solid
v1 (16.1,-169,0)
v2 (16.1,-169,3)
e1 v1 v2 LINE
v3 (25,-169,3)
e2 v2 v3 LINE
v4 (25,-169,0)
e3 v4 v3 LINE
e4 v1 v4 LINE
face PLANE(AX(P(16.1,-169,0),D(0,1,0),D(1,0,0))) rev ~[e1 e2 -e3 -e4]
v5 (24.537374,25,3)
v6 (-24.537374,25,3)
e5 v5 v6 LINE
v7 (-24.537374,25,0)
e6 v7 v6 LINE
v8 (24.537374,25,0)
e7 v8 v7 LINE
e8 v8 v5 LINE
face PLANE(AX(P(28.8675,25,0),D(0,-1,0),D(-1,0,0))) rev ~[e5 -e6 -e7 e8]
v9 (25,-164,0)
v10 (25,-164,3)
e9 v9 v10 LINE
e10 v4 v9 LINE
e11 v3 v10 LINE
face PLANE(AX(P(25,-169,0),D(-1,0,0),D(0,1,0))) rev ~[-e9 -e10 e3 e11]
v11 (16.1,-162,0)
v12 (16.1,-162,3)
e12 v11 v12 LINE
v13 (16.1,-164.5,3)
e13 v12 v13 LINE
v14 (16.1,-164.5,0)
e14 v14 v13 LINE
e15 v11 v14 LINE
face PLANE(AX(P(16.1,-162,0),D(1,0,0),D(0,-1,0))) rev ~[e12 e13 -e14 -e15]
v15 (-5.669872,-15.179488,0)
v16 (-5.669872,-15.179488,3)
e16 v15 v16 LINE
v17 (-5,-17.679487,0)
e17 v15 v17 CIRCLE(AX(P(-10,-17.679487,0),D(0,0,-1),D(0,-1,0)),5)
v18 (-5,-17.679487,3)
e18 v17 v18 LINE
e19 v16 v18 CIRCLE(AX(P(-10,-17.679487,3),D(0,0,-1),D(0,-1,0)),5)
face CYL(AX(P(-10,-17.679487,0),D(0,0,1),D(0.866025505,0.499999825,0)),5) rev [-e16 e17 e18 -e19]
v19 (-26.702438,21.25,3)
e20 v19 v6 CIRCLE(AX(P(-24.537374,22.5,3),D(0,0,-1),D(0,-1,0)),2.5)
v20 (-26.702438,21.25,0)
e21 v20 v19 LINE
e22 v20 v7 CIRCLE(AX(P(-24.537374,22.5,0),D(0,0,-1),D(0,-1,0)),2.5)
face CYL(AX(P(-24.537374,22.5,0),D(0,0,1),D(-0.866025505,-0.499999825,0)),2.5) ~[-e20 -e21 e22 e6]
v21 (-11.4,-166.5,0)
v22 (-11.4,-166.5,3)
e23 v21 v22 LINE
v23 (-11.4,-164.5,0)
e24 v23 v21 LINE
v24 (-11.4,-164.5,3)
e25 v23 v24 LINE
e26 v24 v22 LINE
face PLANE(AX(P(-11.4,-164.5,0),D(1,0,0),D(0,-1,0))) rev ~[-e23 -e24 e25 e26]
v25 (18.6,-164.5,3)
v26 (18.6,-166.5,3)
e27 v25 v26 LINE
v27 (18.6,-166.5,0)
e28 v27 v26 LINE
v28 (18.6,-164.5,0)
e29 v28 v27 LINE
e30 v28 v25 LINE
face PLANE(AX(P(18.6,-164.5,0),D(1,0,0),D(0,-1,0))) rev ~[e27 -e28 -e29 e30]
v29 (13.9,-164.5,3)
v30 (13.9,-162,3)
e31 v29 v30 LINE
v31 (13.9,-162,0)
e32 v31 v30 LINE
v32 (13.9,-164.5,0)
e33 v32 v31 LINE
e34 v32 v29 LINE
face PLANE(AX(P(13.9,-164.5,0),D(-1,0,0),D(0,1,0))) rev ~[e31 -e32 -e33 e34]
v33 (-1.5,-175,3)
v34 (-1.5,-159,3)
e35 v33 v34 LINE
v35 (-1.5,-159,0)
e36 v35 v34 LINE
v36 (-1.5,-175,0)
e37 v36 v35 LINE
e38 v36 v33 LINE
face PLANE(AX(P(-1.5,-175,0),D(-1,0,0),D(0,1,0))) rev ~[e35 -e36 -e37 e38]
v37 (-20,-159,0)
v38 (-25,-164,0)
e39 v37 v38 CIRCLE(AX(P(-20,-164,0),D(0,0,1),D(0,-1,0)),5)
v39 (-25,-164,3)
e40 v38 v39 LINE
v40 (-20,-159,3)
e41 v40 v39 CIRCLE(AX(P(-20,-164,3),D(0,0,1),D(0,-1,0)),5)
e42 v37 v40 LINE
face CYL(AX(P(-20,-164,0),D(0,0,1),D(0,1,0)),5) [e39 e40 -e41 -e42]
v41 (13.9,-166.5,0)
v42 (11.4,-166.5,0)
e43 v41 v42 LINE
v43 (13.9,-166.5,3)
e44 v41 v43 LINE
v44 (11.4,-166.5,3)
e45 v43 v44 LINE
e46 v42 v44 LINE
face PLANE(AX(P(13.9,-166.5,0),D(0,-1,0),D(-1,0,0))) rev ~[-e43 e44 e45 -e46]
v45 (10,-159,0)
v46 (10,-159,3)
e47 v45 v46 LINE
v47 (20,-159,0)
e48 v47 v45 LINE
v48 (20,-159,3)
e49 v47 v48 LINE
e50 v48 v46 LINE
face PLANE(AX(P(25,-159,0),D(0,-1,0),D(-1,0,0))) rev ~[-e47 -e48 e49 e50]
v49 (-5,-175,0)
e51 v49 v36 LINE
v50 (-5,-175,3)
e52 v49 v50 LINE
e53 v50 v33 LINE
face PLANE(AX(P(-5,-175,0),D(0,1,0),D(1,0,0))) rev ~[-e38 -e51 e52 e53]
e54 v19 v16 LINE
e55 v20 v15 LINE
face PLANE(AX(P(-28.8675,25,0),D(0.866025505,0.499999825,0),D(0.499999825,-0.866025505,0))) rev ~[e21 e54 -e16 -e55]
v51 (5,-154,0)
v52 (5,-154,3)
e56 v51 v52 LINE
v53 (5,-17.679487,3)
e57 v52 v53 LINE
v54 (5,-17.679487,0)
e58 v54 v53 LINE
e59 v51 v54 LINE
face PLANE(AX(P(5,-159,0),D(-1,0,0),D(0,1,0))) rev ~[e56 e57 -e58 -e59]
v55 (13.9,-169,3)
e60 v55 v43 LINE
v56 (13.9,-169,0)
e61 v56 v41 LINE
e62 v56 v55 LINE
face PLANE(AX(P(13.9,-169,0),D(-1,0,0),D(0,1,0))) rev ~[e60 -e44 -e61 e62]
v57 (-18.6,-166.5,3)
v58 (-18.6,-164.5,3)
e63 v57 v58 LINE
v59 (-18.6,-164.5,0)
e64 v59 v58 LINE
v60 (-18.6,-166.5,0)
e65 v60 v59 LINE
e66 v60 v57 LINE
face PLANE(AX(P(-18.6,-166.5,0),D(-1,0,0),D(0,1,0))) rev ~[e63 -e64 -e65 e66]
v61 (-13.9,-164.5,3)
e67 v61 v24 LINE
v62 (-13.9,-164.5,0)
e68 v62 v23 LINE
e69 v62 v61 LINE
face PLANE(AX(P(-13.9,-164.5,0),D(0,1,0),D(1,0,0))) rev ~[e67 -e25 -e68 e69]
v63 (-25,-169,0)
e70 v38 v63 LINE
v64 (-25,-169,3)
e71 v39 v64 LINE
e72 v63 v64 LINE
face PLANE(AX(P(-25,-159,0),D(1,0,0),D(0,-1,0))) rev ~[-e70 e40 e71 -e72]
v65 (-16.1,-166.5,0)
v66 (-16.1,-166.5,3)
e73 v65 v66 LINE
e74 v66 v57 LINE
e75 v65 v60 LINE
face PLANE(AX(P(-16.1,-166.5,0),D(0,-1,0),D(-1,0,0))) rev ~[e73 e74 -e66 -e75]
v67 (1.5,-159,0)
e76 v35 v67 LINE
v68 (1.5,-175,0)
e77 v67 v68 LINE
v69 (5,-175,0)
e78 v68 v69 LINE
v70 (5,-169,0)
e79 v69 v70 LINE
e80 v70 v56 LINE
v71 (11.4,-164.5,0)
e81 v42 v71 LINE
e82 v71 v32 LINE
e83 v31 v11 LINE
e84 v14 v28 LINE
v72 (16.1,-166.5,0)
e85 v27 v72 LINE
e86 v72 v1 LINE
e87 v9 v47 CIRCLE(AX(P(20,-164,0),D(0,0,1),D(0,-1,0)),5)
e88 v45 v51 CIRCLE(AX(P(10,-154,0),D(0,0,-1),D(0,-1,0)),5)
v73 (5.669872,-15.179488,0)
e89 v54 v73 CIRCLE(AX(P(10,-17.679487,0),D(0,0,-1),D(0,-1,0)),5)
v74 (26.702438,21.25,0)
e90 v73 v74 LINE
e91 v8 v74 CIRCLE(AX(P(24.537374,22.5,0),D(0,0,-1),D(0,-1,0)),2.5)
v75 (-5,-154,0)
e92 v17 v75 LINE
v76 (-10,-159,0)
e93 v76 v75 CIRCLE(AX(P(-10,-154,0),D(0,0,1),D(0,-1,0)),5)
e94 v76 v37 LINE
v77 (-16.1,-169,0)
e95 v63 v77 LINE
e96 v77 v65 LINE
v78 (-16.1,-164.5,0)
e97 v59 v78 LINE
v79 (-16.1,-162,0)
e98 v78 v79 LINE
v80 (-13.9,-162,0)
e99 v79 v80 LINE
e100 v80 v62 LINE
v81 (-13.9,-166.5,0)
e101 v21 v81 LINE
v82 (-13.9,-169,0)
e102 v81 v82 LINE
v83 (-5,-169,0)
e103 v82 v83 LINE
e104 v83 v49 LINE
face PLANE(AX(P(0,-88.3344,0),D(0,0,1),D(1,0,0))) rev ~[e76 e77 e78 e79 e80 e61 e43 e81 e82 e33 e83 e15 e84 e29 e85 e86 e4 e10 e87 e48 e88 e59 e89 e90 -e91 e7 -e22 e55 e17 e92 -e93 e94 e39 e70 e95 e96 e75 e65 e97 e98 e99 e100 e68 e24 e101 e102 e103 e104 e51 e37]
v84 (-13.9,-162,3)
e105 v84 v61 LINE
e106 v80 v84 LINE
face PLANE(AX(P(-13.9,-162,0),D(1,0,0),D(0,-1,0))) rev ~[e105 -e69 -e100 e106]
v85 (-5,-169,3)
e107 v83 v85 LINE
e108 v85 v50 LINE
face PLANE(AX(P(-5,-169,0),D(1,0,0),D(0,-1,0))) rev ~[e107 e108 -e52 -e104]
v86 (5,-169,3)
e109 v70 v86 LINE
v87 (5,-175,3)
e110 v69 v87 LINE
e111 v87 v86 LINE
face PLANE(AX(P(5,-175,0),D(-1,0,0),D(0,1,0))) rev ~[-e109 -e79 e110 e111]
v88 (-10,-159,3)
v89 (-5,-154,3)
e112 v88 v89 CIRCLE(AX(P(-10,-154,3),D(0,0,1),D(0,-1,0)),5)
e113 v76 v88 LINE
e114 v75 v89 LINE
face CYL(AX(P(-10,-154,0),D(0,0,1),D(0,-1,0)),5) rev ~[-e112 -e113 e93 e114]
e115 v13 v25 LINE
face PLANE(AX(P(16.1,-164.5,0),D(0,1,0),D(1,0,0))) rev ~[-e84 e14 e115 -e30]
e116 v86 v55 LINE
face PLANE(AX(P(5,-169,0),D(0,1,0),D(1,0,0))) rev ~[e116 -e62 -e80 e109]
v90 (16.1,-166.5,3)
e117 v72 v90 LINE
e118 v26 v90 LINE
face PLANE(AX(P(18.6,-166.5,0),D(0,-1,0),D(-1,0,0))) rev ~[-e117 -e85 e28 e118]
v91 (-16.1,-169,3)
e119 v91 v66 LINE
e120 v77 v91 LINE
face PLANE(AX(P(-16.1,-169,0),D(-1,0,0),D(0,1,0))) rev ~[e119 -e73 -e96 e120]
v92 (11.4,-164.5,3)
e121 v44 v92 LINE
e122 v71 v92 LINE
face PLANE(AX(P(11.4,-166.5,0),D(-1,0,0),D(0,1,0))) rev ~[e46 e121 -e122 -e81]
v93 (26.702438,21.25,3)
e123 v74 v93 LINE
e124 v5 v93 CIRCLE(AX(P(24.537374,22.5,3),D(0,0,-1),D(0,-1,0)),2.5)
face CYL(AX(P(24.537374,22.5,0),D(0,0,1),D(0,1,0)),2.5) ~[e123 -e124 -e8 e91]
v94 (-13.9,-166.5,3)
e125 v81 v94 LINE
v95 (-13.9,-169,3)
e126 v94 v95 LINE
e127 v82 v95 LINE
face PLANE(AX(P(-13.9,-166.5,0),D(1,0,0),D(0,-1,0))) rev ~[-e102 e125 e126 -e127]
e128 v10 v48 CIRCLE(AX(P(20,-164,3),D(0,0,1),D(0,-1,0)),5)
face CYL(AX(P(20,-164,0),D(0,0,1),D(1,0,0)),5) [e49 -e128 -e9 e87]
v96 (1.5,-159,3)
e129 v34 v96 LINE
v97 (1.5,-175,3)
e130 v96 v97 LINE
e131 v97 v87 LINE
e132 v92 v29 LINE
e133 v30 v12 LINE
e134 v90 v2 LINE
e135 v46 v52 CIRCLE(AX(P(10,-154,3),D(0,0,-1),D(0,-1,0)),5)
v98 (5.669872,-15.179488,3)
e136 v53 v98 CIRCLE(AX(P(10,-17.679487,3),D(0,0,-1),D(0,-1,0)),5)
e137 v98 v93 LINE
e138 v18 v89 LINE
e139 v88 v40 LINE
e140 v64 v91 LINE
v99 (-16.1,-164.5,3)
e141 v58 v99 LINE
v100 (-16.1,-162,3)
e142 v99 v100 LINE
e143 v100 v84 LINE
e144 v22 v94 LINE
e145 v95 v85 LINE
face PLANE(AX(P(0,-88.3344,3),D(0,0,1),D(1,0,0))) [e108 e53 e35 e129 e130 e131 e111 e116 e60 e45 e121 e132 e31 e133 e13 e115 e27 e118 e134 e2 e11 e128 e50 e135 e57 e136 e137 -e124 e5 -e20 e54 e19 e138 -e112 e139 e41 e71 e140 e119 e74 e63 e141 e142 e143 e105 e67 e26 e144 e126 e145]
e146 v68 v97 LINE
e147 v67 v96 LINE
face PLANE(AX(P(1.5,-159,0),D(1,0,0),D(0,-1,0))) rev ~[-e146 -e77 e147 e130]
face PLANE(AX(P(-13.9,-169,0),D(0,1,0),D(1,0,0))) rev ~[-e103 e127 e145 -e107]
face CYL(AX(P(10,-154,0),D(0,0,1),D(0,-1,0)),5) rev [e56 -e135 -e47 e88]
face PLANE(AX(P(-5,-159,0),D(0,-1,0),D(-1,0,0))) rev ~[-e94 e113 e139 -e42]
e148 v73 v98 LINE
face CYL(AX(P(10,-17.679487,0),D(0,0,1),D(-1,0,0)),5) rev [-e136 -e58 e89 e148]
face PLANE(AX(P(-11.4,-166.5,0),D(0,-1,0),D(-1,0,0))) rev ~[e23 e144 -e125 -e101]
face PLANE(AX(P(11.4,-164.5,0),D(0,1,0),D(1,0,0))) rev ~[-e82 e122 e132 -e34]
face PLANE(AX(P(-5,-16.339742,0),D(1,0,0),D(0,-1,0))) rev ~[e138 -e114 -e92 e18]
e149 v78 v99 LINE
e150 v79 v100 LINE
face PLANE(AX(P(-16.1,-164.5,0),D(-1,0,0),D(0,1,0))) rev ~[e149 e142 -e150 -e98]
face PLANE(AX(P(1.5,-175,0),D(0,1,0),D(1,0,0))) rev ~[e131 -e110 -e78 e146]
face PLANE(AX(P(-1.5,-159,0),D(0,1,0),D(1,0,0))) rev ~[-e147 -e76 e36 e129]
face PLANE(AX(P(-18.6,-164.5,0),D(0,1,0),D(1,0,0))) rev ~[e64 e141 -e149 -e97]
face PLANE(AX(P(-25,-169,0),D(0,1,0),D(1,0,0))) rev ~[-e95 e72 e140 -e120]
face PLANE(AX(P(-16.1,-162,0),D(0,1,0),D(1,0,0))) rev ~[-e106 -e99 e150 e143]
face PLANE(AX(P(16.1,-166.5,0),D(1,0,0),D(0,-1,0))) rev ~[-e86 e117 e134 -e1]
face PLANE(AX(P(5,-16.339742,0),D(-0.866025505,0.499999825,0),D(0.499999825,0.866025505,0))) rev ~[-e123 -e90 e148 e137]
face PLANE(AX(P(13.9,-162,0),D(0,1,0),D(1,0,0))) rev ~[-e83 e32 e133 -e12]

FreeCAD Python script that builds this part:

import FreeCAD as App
import Part
import Sketcher
Q = App.Units.Quantity


def edges_at(feature, points):
    """Names of the edges that pass closest to the given points."""
    edges = feature.Shape.Edges
    near = lambda p: min(range(len(edges)), key=lambda i: edges[i].distToShape(Part.Vertex(*p))[0])
    return sorted({f"Edge{near(p) + 1}" for p in points})


def add_polygon(sketch, points):
    """Adds a closed chain of lines whose ends are joined by coincident constraints."""
    first, n = sketch.GeometryCount, len(points)
    for a, b in zip(points, points[1:] + points[:1]):
        sketch.addGeometry(Part.LineSegment(App.Vector(*a, 0), App.Vector(*b, 0)), False)
    for i in range(n):
        sketch.addConstraint(Sketcher.Constraint("Coincident", first + i, 2, first + (i + 1) % n, 1))

doc = App.newDocument("Part")
body = doc.addObject("PartDesign::Body", "Body")

sketch1 = body.newObject("Sketcher::SketchObject", "Sketch")
sketch1.AttachmentSupport = (doc.getObject("XY_Plane"), [""])
sketch1.MapMode = "FlatFace"
add_polygon(sketch1, [(-5, -159), (-25, -159), (-25, -169), (-16.1, -169), (-16.1, -166.5), (-18.6, -166.5), (-18.6, -164.5), (-16.1, -164.5), (-16.1, -162), (-13.9, -162), (-13.9, -164.5), (-11.4, -164.5), (-11.4, -166.5), (-13.9, -166.5), (-13.9, -169), (-5, -169), (-5, -175), (-1.5, -175), (-1.5, -159), (1.5, -159), (1.5, -175), (5, -175), (5, -169), (13.9, -169), (13.9, -166.5), (11.4, -166.5), (11.4, -164.5), (13.9, -164.5), (13.9, -162), (16.1, -162), (16.1, -164.5), (18.6, -164.5), (18.6, -166.5), (16.1, -166.5), (16.1, -169), (25, -169), (25, -159), (5, -159), (5, -16.3), (28.9, 25), (-28.9, 25), (-5, -16.3)])
sketch1.addConstraint([
    Sketcher.Constraint("Horizontal", 0),
    Sketcher.Constraint("Vertical", 1),
    Sketcher.Constraint("Horizontal", 2),
    Sketcher.Constraint("Vertical", 3),
    Sketcher.Constraint("Horizontal", 4),
    Sketcher.Constraint("Vertical", 5),
    Sketcher.Constraint("Horizontal", 6),
    Sketcher.Constraint("Vertical", 7),
    Sketcher.Constraint("Horizontal", 8),
    Sketcher.Constraint("Vertical", 9),
    Sketcher.Constraint("Horizontal", 10),
    Sketcher.Constraint("Vertical", 11),
    Sketcher.Constraint("Horizontal", 12),
    Sketcher.Constraint("Vertical", 13),
    Sketcher.Constraint("Horizontal", 14),
    Sketcher.Constraint("Vertical", 15),
    Sketcher.Constraint("Horizontal", 16),
    Sketcher.Constraint("Vertical", 17),
    Sketcher.Constraint("Horizontal", 18),
    Sketcher.Constraint("Vertical", 19),
    Sketcher.Constraint("Horizontal", 20),
    Sketcher.Constraint("Vertical", 21),
    Sketcher.Constraint("Horizontal", 22),
    Sketcher.Constraint("Vertical", 23),
    Sketcher.Constraint("Horizontal", 24),
    Sketcher.Constraint("Vertical", 25),
    Sketcher.Constraint("Horizontal", 26),
    Sketcher.Constraint("Vertical", 27),
    Sketcher.Constraint("Horizontal", 28),
    Sketcher.Constraint("Vertical", 29),
    Sketcher.Constraint("Horizontal", 30),
    Sketcher.Constraint("Vertical", 31),
    Sketcher.Constraint("Horizontal", 32),
    Sketcher.Constraint("Vertical", 33),
    Sketcher.Constraint("Horizontal", 34),
    Sketcher.Constraint("Vertical", 35),
    Sketcher.Constraint("Horizontal", 36),
    Sketcher.Constraint("Vertical", 37),
    Sketcher.Constraint("Horizontal", 39),
    Sketcher.Constraint("Vertical", 41),
    Sketcher.Constraint("Symmetric", 16, 2, 19, 2, -2),
    Sketcher.Constraint("Symmetric", 14, 2, 21, 2, -2),
    Sketcher.Constraint("Symmetric", 12, 2, 23, 2, -2),
    Sketcher.Constraint("Symmetric", 10, 2, 25, 2, -2),
    Sketcher.Constraint("Symmetric", 8, 2, 27, 2, -2),
    Sketcher.Constraint("Symmetric", 6, 2, 29, 2, -2),
    Sketcher.Constraint("Symmetric", 4, 2, 31, 2, -2),
    Sketcher.Constraint("Symmetric", 2, 2, 33, 2, -2),
    Sketcher.Constraint("Symmetric", 0, 2, 35, 2, -2),
    Sketcher.Constraint("Symmetric", 37, 2, 40, 2, -2),
    Sketcher.Constraint("Horizontal", 6, 2, 9, 2),
    Sketcher.Constraint("Horizontal", 4, 2, 11, 2),
    Sketcher.Constraint("Horizontal", 2, 2, 13, 2),
    Sketcher.Constraint("Horizontal", 0, 2, 17, 2),
    Sketcher.Constraint("Vertical", 3, 2, 6, 2),
    Sketcher.Constraint("Vertical", 9, 2, 12, 2),
    Sketcher.Constraint("Vertical", 21, 2, 36, 2),
    Sketcher.Constraint("Equal", 6, 10),
    Sketcher.Constraint("Equal", 2, 14),
    Sketcher.Constraint("Equal", 32, 3),
    Sketcher.Constraint("Equal", 3, 7),
    Sketcher.Constraint("Equal", 38, 40),
    Sketcher.Constraint("DistanceX", 0, 2, 0, 1, Q("20 mm")),
    Sketcher.Constraint("DistanceX", 18, 1, 18, 2, Q("3 mm")),
    Sketcher.Constraint("DistanceY", 1, 2, 1, 1, Q("10 mm")),
    Sketcher.Constraint("DistanceY", 5, 1, 5, 2, Q("2 mm")),
    Sketcher.Constraint("DistanceY", 15, 2, 15, 1, Q("6 mm")),
    Sketcher.Constraint("Angle", 38, Q("60.000012 deg")),
    Sketcher.Constraint("DistanceX", 2, 1, 2, 2, Q("8.9 mm")),
    Sketcher.Constraint("DistanceX", 4, 2, 4, 1, Q("2.5 mm")),
    Sketcher.Constraint("DistanceX", 16, 1, 16, 2, Q("3.5 mm")),
    Sketcher.Constraint("DistanceY", 0, 2, -1, 1, Q("159 mm")),
    Sketcher.Constraint("DistanceY", -1, 1, 38, 2, Q("25 mm")),
    Sketcher.Constraint("DistanceX", 39, 2, 39, 1, Q("57.735 mm")),
])
pad1 = body.newObject("PartDesign::Pad", "Pad")
pad1.Profile = sketch1
pad1.Length = 3
doc.recompute()

fillet = body.newObject("PartDesign::Fillet", "Fillet")
fillet.Base = (pad1, edges_at(pad1, [
    (-5, -16.34, 1.5),
    (5, -16.34, 1.5),
    (5, -159, 1.5),
    (25, -159, 1.5),
    (-25, -159, 1.5),
    (-5, -159, 1.5),
]))
fillet.Radius = 5
doc.recompute()

fillet2 = body.newObject("PartDesign::Fillet", "Fillet001")
fillet2.Base = (fillet, edges_at(fillet, [(-28.867, 25, 1.5), (28.867, 25, 1.5)]))
fillet2.Radius = 2.5

doc.recompute()
